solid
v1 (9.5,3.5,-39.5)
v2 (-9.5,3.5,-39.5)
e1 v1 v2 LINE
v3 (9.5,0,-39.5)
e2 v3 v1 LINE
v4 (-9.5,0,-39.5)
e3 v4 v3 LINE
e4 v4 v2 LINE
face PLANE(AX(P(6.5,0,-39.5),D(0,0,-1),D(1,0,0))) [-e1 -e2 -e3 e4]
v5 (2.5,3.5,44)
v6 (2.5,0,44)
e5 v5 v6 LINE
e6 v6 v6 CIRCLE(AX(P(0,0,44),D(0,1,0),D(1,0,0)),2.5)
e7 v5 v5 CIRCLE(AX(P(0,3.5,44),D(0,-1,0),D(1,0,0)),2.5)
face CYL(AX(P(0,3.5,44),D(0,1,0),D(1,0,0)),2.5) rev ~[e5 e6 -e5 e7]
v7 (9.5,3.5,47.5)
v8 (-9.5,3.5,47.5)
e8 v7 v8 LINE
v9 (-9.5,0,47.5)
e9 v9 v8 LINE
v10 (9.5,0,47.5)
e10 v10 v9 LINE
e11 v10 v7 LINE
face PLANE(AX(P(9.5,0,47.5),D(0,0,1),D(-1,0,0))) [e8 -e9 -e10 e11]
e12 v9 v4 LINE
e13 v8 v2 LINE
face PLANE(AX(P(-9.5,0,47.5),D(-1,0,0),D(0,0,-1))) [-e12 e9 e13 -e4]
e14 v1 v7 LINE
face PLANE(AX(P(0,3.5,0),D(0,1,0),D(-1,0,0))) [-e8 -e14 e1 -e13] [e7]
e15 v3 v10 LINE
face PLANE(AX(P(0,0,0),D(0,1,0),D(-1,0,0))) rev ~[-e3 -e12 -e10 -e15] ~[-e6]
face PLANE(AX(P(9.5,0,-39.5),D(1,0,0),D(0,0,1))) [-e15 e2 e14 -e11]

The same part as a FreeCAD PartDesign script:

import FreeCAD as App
import Part
import Sketcher

V = App.Vector

doc = App.newDocument("Part")
body = doc.addObject("PartDesign::Body", "Body")

# Sketch on XZ plane
sketch1 = doc.addObject("Sketcher::SketchObject", "Sketch")
body.addObject(sketch1)
sketch1.AttachmentSupport = (doc.XZ_Plane, [""])
sketch1.MapMode = "FlatFace"
sketch1.addGeometry(Part.LineSegment(V(-9.5, 47.5, 0), V(9.5, 47.5, 0)), False)
sketch1.addGeometry(Part.LineSegment(V(9.5, 47.5, 0), V(9.5, -39.5, 0)), False)
sketch1.addGeometry(Part.LineSegment(V(9.5, -39.5, 0), V(-9.5, -39.5, 0)), False)
sketch1.addGeometry(Part.LineSegment(V(-9.5, -39.5, 0), V(-9.5, 47.5, 0)), False)
sketch1.addConstraint(Sketcher.Constraint("Coincident", 0, 2, 1, 1))
sketch1.addConstraint(Sketcher.Constraint("Coincident", 1, 2, 2, 1))
sketch1.addConstraint(Sketcher.Constraint("Coincident", 2, 2, 3, 1))
sketch1.addConstraint(Sketcher.Constraint("Coincident", 3, 2, 0, 1))
sketch1.addConstraint(Sketcher.Constraint("Horizontal", 0))
sketch1.addConstraint(Sketcher.Constraint("Vertical", 1))
sketch1.addConstraint(Sketcher.Constraint("Horizontal", 2))
sketch1.addConstraint(Sketcher.Constraint("Vertical", 3))
sketch1.addConstraint(Sketcher.Constraint("DistanceX", 0, 1, 0, 2, 19.0))
sketch1.addConstraint(Sketcher.Constraint("DistanceY", 1, 2, 1, 1, 87.0))
sketch1.addConstraint(Sketcher.Constraint("DistanceX", -1, 1, 0, 2, 9.5))
sketch1.addConstraint(Sketcher.Constraint("DistanceY", -1, 1, 0, 2, 47.5))
pad1 = doc.addObject("PartDesign::Pad", "Pad")
body.addObject(pad1)
pad1.Profile = sketch1
pad1.Length = 3.5
pad1.Reversed = True

# Sketch on XZ plane
sketch2 = doc.addObject("Sketcher::SketchObject", "Sketch001")
body.addObject(sketch2)
sketch2.AttachmentSupport = (doc.XZ_Plane, [""])
sketch2.MapMode = "FlatFace"
sketch2.AttachmentOffset = App.Placement(V(0, 0, -3.5), App.Rotation())
sketch2.addGeometry(Part.Circle(V(0, 44, 0), V(0, 0, 1), 2.5), False)
sketch2.addConstraint(Sketcher.Constraint("PointOnObject", 0, 3, -2))
sketch2.addConstraint(Sketcher.Constraint("Diameter", 0, 5.0))
sketch2.addConstraint(Sketcher.Constraint("DistanceY", -1, 1, 0, 3, 44.0))
pocket1 = doc.addObject("PartDesign::Pocket", "Pocket")
body.addObject(pocket1)
pocket1.Profile = sketch2
pocket1.Length = 5
pocket1.Reversed = True

doc.recompute()
